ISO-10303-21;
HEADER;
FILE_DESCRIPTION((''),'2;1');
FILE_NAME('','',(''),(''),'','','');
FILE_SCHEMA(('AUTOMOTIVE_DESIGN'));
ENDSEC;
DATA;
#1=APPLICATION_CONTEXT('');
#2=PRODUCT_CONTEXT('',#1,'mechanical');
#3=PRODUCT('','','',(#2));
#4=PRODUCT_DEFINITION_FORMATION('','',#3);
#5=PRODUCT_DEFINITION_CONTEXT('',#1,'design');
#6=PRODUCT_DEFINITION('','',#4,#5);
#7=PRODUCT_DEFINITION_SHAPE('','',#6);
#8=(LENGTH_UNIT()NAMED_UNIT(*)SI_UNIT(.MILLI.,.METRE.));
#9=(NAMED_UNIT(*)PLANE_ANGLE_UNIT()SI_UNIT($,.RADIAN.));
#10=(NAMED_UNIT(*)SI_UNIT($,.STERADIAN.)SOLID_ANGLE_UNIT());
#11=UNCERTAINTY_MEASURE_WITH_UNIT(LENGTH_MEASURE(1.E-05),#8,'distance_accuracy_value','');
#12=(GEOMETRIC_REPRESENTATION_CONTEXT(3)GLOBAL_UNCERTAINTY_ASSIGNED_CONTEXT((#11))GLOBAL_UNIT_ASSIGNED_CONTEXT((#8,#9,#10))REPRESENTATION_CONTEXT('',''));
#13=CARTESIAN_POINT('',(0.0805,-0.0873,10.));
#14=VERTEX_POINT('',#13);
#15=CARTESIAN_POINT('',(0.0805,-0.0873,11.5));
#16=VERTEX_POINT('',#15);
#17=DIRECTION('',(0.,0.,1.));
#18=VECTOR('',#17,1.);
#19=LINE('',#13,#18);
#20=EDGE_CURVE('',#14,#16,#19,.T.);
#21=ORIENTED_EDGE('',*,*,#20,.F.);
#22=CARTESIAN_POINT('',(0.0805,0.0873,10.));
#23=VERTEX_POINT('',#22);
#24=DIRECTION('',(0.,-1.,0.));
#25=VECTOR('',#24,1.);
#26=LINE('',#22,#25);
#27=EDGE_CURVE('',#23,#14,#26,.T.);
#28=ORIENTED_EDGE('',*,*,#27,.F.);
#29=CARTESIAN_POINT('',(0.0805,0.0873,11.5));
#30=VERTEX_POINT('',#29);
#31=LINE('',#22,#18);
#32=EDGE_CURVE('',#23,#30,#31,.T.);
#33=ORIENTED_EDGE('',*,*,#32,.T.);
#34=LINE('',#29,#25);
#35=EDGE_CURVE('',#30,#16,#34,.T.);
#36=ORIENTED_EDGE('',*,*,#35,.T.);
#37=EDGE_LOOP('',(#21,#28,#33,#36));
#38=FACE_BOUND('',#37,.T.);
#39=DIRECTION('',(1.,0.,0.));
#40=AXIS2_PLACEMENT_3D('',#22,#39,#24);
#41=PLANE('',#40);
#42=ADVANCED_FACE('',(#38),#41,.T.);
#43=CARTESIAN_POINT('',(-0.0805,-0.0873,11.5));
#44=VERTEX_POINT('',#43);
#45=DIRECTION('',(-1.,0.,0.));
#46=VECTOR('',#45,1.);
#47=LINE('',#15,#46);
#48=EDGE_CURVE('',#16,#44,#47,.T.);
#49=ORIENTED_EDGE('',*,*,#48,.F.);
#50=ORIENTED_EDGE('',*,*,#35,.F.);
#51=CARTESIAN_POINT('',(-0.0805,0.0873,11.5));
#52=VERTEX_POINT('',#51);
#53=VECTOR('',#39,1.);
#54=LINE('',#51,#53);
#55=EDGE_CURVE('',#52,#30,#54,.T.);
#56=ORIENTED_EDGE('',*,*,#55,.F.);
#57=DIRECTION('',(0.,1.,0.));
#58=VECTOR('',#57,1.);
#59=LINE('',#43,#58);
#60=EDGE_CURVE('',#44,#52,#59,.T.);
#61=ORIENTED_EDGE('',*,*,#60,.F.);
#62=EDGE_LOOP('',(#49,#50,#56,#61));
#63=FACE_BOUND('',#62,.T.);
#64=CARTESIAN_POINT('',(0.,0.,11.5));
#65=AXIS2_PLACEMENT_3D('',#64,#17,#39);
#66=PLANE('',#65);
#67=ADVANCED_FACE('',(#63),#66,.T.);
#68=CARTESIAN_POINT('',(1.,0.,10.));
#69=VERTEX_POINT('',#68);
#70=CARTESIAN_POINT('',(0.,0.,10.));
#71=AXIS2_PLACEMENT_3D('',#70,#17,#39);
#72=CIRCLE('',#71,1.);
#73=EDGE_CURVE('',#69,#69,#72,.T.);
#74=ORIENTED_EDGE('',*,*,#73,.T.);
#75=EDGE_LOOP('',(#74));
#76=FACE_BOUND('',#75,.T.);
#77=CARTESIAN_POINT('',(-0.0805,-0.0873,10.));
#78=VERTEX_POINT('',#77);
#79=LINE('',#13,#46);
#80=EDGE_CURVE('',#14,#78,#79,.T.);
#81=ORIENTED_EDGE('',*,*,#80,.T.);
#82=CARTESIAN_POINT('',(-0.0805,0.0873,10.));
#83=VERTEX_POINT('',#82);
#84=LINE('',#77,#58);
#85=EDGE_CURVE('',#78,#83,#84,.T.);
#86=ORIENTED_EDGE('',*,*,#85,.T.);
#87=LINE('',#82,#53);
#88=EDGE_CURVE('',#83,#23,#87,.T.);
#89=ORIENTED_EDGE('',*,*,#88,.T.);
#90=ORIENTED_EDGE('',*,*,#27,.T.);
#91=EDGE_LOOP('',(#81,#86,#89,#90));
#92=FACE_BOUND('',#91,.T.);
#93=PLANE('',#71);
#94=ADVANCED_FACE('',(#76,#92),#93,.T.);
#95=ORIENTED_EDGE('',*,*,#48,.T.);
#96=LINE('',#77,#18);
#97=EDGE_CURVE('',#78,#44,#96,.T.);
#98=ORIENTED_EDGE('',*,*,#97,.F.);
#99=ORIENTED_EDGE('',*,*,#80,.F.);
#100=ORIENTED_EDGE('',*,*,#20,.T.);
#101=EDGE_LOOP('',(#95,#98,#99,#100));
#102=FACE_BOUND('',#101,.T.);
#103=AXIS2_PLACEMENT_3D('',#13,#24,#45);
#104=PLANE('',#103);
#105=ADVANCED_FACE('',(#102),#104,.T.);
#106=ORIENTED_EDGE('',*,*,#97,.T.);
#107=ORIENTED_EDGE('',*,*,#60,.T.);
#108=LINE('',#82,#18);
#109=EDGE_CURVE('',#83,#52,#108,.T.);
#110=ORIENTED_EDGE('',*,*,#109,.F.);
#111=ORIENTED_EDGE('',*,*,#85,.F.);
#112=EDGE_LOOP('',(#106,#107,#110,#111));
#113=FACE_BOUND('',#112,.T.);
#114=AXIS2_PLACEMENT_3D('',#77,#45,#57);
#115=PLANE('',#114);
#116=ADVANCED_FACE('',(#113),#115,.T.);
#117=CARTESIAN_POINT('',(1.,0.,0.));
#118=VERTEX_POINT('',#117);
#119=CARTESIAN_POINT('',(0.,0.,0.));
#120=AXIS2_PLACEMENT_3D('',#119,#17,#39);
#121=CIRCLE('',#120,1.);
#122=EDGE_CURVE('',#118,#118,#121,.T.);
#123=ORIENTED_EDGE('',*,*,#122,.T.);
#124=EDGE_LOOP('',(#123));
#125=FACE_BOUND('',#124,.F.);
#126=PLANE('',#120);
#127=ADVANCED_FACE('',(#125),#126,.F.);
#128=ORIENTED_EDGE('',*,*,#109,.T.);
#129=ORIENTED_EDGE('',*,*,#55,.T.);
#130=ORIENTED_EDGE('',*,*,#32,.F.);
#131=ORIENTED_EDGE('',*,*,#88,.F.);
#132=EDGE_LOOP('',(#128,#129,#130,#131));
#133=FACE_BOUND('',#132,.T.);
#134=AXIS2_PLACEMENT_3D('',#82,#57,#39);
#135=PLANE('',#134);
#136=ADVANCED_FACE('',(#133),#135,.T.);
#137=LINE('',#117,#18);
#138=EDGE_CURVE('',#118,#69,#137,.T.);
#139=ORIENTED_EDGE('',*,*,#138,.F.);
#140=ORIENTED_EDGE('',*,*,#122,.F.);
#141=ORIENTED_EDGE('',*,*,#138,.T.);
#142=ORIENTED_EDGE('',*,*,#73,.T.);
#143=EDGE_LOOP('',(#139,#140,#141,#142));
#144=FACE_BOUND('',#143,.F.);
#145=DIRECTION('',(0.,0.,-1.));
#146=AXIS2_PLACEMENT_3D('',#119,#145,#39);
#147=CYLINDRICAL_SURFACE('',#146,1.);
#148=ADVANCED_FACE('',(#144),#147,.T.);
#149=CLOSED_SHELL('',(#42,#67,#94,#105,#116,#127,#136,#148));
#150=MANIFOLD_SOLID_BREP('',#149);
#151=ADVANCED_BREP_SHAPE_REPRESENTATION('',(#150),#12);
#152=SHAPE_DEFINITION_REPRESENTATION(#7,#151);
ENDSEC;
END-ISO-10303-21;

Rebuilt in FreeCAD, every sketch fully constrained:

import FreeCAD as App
import Part
import Sketcher
Q = App.Units.Quantity

doc = App.newDocument("Part")
params = doc.addObject("Spreadsheet::Sheet", "Params")
for row, (alias, value) in enumerate([
    ("sketch1_diameter", "2 mm"),
    ("pad1_length", "10 mm"),
    ("pad2_length", "1.5 mm"),
], start=1):
    params.set(f"A{row}", alias)
    params.set(f"B{row}", "=" + value)
    params.setAlias(f"B{row}", alias)

body = doc.addObject("PartDesign::Body", "Body")

# Sketch on XY plane
sketch1 = body.newObject("Sketcher::SketchObject", "Sketch")
sketch1.AttachmentSupport = (doc.getObject("XY_Plane"), [""])
sketch1.MapMode = "FlatFace"
sketch1.addGeometry(Part.Circle(App.Vector(0, 0, 0), App.Vector(0, 0, 1), 1), False)
sketch1.addConstraint([
    Sketcher.Constraint("Coincident", 0, 3, -1, 1),
    Sketcher.Constraint("Diameter", 0, Q("2 mm")),
])
sketch1.setExpression("Constraints[1]", "Params.sketch1_diameter")
pad1 = body.newObject("PartDesign::Pad", "Pad")
pad1.Profile = sketch1
pad1.setExpression("Length", "Params.pad1_length")

# Sketch on XY plane
sketch2 = body.newObject("Sketcher::SketchObject", "Sketch001")
sketch2.AttachmentSupport = (doc.getObject("XY_Plane"), [""])
sketch2.MapMode = "FlatFace"
sketch2.AttachmentOffset = App.Placement(App.Vector(0, 0, 10), App.Rotation())
sketch2.addGeometry([
    Part.LineSegment(App.Vector(-0.08, -0.09, 0), App.Vector(0.08, -0.09, 0)),
    Part.LineSegment(App.Vector(0.08, -0.09, 0), App.Vector(0.08, 0.09, 0)),
    Part.LineSegment(App.Vector(0.08, 0.09, 0), App.Vector(-0.08, 0.09, 0)),
    Part.LineSegment(App.Vector(-0.08, 0.09, 0), App.Vector(-0.08, -0.09, 0)),
], False)
sketch2.addConstraint([
    Sketcher.Constraint("Coincident", 0, 2, 1, 1),
    Sketcher.Constraint("Coincident", 1, 2, 2, 1),
    Sketcher.Constraint("Coincident", 2, 2, 3, 1),
    Sketcher.Constraint("Coincident", 3, 2, 0, 1),
    Sketcher.Constraint("Horizontal", 0),
    Sketcher.Constraint("Vertical", 1),
    Sketcher.Constraint("Horizontal", 2),
    Sketcher.Constraint("Vertical", 3),
    Sketcher.Constraint("Symmetric", 0, 2, 2, 2, -1, 1),
    Sketcher.Constraint("DistanceX", 0, 1, 0, 2, Q("0.161 mm")),
    Sketcher.Constraint("DistanceY", 1, 1, 1, 2, Q("0.1746 mm")),
])
pad2 = body.newObject("PartDesign::Pad", "Pad001")
pad2.Profile = sketch2
pad2.setExpression("Length", "Params.pad2_length")

doc.recompute()
